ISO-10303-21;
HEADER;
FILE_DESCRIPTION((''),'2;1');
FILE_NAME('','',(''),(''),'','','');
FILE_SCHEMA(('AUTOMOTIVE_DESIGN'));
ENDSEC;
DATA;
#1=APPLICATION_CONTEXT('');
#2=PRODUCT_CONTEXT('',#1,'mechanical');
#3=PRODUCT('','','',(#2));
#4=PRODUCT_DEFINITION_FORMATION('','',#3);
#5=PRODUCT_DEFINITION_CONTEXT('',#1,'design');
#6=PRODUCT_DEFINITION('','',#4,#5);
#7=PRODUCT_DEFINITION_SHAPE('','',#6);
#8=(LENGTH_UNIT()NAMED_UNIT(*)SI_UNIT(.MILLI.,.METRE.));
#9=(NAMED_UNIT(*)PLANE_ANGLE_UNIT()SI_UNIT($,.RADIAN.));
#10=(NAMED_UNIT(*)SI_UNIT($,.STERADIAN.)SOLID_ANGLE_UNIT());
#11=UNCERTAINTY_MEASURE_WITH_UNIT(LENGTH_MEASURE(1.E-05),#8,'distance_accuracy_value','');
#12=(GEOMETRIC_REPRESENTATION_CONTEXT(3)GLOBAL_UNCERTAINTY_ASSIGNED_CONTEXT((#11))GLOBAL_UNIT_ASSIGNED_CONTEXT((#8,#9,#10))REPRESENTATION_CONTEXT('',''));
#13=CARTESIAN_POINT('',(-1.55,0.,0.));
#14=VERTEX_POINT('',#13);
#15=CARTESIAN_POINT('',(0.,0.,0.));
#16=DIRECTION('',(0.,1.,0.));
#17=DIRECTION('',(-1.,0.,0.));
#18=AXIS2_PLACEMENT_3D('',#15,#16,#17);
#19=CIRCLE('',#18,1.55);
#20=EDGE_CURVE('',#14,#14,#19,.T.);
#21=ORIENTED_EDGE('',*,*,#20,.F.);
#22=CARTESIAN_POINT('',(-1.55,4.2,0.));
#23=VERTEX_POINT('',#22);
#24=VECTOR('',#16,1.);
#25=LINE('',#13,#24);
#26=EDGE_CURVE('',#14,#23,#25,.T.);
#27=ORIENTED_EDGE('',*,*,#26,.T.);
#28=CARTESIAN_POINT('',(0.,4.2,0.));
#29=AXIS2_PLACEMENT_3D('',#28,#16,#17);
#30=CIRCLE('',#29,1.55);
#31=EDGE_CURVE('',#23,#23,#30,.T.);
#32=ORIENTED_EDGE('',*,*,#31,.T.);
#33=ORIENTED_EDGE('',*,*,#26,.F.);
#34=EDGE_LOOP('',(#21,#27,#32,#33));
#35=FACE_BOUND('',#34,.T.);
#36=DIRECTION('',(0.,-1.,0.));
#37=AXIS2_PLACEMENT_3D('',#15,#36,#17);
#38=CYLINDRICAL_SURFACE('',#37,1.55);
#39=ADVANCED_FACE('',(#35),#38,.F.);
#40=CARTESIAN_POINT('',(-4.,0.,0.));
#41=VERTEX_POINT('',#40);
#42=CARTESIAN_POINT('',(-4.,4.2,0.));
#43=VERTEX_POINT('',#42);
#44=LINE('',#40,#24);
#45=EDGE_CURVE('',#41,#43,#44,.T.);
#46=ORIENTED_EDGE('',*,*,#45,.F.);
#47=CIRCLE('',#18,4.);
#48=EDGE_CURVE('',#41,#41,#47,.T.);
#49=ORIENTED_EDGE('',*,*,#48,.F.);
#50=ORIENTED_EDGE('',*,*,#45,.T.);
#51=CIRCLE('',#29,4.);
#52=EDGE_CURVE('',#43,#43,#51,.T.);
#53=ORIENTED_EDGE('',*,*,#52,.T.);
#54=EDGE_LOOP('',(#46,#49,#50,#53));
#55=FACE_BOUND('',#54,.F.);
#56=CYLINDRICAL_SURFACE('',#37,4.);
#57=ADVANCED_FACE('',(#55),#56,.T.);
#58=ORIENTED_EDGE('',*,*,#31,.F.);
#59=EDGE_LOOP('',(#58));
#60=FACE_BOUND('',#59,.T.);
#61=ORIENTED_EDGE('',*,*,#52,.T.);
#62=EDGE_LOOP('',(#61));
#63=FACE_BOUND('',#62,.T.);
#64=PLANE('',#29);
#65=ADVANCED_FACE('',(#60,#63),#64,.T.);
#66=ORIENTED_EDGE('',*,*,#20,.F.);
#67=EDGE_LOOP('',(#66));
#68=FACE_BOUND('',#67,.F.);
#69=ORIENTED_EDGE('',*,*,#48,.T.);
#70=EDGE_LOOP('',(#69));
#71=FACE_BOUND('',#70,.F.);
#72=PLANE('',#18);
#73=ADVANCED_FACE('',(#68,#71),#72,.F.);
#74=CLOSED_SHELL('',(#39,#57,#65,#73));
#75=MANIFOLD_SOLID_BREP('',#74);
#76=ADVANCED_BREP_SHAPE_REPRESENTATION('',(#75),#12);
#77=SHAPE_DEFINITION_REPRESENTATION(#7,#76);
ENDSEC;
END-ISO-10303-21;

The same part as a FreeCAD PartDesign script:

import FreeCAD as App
import Part
import Sketcher
from FreeCAD import Vector

doc = App.newDocument("Part")
body = doc.addObject("PartDesign::Body", "Body")

# Sketch on XZ plane
sketch1 = body.newObject("Sketcher::SketchObject", "Sketch")
sketch1.AttachmentSupport = (doc.getObject("XZ_Plane"), [""])
sketch1.MapMode = "FlatFace"
sketch1.addGeometry([
    Part.Circle(Vector(0, 0, 0), Vector(0, 0, 1), 4),
    Part.Circle(Vector(0, 0, 0), Vector(0, 0, 1), 1.6),
], False)
sketch1.addConstraint([
    Sketcher.Constraint("Coincident", 0, 3, -1, 1),
    Sketcher.Constraint("Coincident", 1, 3, -1, 1),
    Sketcher.Constraint("Diameter", 0, 8.0),
    Sketcher.Constraint("Diameter", 1, 3.1),
])
pad1 = body.newObject("PartDesign::Pad", "Pad")
pad1.Profile = sketch1
pad1.Length = 4.2
pad1.Reversed = True

doc.recompute()
